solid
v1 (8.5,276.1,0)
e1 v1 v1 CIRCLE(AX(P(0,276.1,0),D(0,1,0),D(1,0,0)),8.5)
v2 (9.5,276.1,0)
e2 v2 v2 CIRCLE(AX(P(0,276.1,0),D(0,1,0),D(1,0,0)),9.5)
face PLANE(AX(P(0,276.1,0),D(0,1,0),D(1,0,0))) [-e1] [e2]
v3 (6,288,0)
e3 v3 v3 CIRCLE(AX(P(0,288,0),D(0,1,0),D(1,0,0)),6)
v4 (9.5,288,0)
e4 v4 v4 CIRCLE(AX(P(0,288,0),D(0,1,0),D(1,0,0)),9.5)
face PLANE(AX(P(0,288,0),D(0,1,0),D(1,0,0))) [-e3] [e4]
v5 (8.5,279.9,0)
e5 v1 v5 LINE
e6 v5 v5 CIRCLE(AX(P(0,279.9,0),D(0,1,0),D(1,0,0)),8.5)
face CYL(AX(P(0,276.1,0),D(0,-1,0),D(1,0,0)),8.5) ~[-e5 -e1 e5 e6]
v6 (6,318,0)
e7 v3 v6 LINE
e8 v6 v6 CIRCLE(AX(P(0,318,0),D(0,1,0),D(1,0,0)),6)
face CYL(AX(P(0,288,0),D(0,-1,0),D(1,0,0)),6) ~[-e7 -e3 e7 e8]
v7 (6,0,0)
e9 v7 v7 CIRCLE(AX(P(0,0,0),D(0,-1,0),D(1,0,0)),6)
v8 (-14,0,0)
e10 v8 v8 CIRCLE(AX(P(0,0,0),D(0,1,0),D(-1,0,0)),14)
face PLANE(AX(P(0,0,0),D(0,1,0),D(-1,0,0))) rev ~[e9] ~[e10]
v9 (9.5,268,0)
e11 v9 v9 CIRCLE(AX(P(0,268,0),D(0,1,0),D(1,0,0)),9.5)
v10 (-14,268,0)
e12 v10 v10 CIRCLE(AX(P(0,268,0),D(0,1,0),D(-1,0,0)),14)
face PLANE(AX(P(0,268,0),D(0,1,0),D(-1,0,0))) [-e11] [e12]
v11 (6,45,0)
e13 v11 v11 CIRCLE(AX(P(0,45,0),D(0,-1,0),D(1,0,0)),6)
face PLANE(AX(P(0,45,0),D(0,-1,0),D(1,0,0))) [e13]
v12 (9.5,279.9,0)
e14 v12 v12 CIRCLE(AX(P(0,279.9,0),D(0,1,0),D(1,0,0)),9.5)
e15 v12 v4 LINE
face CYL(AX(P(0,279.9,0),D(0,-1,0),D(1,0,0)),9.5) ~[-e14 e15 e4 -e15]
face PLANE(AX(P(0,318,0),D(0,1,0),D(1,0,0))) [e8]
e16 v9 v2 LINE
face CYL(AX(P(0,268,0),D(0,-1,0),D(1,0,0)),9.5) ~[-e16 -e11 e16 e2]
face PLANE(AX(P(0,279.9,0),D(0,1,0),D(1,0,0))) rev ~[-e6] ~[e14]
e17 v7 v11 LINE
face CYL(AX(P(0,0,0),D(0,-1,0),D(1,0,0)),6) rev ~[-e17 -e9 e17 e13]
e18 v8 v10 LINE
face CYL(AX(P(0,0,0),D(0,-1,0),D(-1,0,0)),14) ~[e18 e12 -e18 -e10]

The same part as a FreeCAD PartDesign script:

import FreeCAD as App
import Part
import Sketcher

doc = App.newDocument("Part")
body = doc.addObject("PartDesign::Body", "Body")

# Sketch on XZ plane
sketch1 = body.newObject("Sketcher::SketchObject", "Sketch")
sketch1.AttachmentSupport = (doc.getObject("XZ_Plane"), [""])
sketch1.MapMode = "FlatFace"
sketch1.addGeometry(Part.Circle(App.Vector(0, 0, 0), App.Vector(0, 0, 1), 14), False)
sketch1.addConstraint([
    Sketcher.Constraint("Coincident", 0, 3, -1, 1),
    Sketcher.Constraint("Diameter", 0, 28.0),
])
pad1 = body.newObject("PartDesign::Pad", "Pad")
pad1.Profile = sketch1
pad1.Length = 268
pad1.Reversed = True

# Sketch on XZ plane
sketch2 = body.newObject("Sketcher::SketchObject", "Sketch001")
sketch2.AttachmentSupport = (doc.getObject("XZ_Plane"), [""])
sketch2.MapMode = "FlatFace"
sketch2.AttachmentOffset = App.Placement(App.Vector(0, 0, -268), App.Rotation())
sketch2.addGeometry(Part.Circle(App.Vector(0, 0, 0), App.Vector(0, 0, 1), 9.5), False)
sketch2.addConstraint([
    Sketcher.Constraint("Coincident", 0, 3, -1, 1),
    Sketcher.Constraint("Diameter", 0, 19.0),
])
pad2 = body.newObject("PartDesign::Pad", "Pad001")
pad2.Profile = sketch2
pad2.Length = 8.1
pad2.Reversed = True

# Sketch on XZ plane
sketch3 = body.newObject("Sketcher::SketchObject", "Sketch002")
sketch3.AttachmentSupport = (doc.getObject("XZ_Plane"), [""])
sketch3.MapMode = "FlatFace"
sketch3.AttachmentOffset = App.Placement(App.Vector(0, 0, -276.1), App.Rotation())
sketch3.addGeometry(Part.Circle(App.Vector(0, 0, 0), App.Vector(0, 0, 1), 8.5), False)
sketch3.addConstraint([
    Sketcher.Constraint("Coincident", 0, 3, -1, 1),
    Sketcher.Constraint("Diameter", 0, 17.0),
])
pad3 = body.newObject("PartDesign::Pad", "Pad002")
pad3.Profile = sketch3
pad3.Length = 3.8
pad3.Reversed = True

# Sketch on XZ plane
sketch4 = body.newObject("Sketcher::SketchObject", "Sketch003")
sketch4.AttachmentSupport = (doc.getObject("XZ_Plane"), [""])
sketch4.MapMode = "FlatFace"
sketch4.AttachmentOffset = App.Placement(App.Vector(0, 0, -279.9), App.Rotation())
sketch4.addGeometry(Part.Circle(App.Vector(0, 0, 0), App.Vector(0, 0, 1), 9.5), False)
sketch4.addConstraint([
    Sketcher.Constraint("Coincident", 0, 3, -1, 1),
    Sketcher.Constraint("Diameter", 0, 19.0),
])
pad4 = body.newObject("PartDesign::Pad", "Pad003")
pad4.Profile = sketch4
pad4.Length = 8.1
pad4.Reversed = True

# Sketch on XZ plane
sketch5 = body.newObject("Sketcher::SketchObject", "Sketch004")
sketch5.AttachmentSupport = (doc.getObject("XZ_Plane"), [""])
sketch5.MapMode = "FlatFace"
sketch5.AttachmentOffset = App.Placement(App.Vector(0, 0, -288), App.Rotation())
sketch5.addGeometry(Part.Circle(App.Vector(0, 0, 0), App.Vector(0, 0, 1), 6), False)
sketch5.addConstraint([
    Sketcher.Constraint("Coincident", 0, 3, -1, 1),
    Sketcher.Constraint("Diameter", 0, 12.0),
])
pad5 = body.newObject("PartDesign::Pad", "Pad004")
pad5.Profile = sketch5
pad5.Length = 30
pad5.Reversed = True

# Sketch on XZ plane
sketch6 = body.newObject("Sketcher::SketchObject", "Sketch005")
sketch6.AttachmentSupport = (doc.getObject("XZ_Plane"), [""])
sketch6.MapMode = "FlatFace"
sketch6.addGeometry(Part.Circle(App.Vector(0, 0, 0), App.Vector(0, 0, 1), 6), False)
sketch6.addConstraint([
    Sketcher.Constraint("Coincident", 0, 3, -1, 1),
    Sketcher.Constraint("Diameter", 0, 12.0),
])
pocket1 = body.newObject("PartDesign::Pocket", "Pocket")
pocket1.Profile = sketch6
pocket1.Length = 45

doc.recompute()
